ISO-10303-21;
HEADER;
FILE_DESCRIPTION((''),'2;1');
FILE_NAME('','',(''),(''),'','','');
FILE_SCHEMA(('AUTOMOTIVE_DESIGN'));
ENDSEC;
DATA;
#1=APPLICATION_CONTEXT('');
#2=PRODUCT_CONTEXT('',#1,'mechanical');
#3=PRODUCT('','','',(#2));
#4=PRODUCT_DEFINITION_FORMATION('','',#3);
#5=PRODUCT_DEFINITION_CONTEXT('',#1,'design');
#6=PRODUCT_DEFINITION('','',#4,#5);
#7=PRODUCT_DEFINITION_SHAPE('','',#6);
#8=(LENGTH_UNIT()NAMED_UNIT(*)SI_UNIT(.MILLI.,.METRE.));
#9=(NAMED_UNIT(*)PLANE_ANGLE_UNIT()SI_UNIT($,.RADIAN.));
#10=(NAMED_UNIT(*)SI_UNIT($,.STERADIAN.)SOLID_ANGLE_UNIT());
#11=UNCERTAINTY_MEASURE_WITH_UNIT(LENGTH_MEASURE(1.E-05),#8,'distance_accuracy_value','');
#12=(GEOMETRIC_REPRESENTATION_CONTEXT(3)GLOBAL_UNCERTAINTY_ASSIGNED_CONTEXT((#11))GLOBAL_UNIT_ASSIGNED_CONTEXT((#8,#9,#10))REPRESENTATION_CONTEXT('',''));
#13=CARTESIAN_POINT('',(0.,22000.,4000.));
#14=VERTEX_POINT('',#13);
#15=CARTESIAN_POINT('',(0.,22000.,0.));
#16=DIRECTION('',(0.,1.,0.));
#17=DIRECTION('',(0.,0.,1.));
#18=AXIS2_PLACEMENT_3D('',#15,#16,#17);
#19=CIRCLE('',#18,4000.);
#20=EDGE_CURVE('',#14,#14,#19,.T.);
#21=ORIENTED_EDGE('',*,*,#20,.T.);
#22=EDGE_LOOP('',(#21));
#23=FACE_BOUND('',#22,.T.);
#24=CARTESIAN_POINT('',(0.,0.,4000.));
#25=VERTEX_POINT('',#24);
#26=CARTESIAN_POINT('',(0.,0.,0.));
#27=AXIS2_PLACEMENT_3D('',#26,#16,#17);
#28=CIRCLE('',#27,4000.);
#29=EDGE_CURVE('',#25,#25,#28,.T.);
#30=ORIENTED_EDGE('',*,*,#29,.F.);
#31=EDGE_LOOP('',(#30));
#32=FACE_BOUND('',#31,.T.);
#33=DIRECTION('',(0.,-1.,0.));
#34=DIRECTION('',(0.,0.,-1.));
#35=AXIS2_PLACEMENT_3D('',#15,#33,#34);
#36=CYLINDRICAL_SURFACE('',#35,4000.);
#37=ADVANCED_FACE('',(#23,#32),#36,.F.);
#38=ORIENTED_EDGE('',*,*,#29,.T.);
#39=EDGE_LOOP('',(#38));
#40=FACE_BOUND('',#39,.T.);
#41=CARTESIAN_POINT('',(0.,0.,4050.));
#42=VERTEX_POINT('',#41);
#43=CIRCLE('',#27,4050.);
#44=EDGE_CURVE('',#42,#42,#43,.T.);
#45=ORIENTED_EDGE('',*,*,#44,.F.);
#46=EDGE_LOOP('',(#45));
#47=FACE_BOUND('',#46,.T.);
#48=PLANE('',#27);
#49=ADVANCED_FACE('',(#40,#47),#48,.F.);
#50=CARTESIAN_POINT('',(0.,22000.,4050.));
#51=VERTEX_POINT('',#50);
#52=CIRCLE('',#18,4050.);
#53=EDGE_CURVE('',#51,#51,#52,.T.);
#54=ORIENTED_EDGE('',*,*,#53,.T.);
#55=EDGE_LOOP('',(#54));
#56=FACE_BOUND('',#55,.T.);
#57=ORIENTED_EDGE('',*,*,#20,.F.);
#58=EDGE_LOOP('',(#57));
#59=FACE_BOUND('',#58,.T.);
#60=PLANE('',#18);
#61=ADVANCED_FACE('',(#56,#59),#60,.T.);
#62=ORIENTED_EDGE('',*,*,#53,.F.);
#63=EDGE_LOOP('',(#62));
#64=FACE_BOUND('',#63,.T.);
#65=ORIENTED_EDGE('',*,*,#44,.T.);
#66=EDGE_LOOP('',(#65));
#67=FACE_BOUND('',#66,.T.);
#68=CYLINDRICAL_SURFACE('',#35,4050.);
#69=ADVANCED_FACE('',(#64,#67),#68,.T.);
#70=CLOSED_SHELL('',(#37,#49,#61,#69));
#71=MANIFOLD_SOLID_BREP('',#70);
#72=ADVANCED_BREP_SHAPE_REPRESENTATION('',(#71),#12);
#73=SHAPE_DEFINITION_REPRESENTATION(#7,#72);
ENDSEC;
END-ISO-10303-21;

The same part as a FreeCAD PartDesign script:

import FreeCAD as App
import Part
import Sketcher
Q = App.Units.Quantity

doc = App.newDocument("Part")
body = doc.addObject("PartDesign::Body", "Body")

# Sketch on XZ plane
sketch1 = doc.addObject("Sketcher::SketchObject", "Sketch")
body.addObject(sketch1)
sketch1.AttachmentSupport = (doc.XZ_Plane, [""])
sketch1.MapMode = "FlatFace"
sketch1.addGeometry([
    Part.Circle(App.Vector(0, 0, 0), App.Vector(0, 0, 1), 4050),
    Part.Circle(App.Vector(0, 0, 0), App.Vector(0, 0, 1), 4000),
], False)
sketch1.addConstraint([
    Sketcher.Constraint("Coincident", 0, 3, -1, 1),
    Sketcher.Constraint("Coincident", 1, 3, -1, 1),
    Sketcher.Constraint("Diameter", 0, Q("8100 mm")),
    Sketcher.Constraint("Diameter", 1, Q("8000 mm")),
])
pad1 = doc.addObject("PartDesign::Pad", "Pad")
body.addObject(pad1)
pad1.Profile = sketch1
pad1.Length = 22000
pad1.Reversed = True

doc.recompute()
